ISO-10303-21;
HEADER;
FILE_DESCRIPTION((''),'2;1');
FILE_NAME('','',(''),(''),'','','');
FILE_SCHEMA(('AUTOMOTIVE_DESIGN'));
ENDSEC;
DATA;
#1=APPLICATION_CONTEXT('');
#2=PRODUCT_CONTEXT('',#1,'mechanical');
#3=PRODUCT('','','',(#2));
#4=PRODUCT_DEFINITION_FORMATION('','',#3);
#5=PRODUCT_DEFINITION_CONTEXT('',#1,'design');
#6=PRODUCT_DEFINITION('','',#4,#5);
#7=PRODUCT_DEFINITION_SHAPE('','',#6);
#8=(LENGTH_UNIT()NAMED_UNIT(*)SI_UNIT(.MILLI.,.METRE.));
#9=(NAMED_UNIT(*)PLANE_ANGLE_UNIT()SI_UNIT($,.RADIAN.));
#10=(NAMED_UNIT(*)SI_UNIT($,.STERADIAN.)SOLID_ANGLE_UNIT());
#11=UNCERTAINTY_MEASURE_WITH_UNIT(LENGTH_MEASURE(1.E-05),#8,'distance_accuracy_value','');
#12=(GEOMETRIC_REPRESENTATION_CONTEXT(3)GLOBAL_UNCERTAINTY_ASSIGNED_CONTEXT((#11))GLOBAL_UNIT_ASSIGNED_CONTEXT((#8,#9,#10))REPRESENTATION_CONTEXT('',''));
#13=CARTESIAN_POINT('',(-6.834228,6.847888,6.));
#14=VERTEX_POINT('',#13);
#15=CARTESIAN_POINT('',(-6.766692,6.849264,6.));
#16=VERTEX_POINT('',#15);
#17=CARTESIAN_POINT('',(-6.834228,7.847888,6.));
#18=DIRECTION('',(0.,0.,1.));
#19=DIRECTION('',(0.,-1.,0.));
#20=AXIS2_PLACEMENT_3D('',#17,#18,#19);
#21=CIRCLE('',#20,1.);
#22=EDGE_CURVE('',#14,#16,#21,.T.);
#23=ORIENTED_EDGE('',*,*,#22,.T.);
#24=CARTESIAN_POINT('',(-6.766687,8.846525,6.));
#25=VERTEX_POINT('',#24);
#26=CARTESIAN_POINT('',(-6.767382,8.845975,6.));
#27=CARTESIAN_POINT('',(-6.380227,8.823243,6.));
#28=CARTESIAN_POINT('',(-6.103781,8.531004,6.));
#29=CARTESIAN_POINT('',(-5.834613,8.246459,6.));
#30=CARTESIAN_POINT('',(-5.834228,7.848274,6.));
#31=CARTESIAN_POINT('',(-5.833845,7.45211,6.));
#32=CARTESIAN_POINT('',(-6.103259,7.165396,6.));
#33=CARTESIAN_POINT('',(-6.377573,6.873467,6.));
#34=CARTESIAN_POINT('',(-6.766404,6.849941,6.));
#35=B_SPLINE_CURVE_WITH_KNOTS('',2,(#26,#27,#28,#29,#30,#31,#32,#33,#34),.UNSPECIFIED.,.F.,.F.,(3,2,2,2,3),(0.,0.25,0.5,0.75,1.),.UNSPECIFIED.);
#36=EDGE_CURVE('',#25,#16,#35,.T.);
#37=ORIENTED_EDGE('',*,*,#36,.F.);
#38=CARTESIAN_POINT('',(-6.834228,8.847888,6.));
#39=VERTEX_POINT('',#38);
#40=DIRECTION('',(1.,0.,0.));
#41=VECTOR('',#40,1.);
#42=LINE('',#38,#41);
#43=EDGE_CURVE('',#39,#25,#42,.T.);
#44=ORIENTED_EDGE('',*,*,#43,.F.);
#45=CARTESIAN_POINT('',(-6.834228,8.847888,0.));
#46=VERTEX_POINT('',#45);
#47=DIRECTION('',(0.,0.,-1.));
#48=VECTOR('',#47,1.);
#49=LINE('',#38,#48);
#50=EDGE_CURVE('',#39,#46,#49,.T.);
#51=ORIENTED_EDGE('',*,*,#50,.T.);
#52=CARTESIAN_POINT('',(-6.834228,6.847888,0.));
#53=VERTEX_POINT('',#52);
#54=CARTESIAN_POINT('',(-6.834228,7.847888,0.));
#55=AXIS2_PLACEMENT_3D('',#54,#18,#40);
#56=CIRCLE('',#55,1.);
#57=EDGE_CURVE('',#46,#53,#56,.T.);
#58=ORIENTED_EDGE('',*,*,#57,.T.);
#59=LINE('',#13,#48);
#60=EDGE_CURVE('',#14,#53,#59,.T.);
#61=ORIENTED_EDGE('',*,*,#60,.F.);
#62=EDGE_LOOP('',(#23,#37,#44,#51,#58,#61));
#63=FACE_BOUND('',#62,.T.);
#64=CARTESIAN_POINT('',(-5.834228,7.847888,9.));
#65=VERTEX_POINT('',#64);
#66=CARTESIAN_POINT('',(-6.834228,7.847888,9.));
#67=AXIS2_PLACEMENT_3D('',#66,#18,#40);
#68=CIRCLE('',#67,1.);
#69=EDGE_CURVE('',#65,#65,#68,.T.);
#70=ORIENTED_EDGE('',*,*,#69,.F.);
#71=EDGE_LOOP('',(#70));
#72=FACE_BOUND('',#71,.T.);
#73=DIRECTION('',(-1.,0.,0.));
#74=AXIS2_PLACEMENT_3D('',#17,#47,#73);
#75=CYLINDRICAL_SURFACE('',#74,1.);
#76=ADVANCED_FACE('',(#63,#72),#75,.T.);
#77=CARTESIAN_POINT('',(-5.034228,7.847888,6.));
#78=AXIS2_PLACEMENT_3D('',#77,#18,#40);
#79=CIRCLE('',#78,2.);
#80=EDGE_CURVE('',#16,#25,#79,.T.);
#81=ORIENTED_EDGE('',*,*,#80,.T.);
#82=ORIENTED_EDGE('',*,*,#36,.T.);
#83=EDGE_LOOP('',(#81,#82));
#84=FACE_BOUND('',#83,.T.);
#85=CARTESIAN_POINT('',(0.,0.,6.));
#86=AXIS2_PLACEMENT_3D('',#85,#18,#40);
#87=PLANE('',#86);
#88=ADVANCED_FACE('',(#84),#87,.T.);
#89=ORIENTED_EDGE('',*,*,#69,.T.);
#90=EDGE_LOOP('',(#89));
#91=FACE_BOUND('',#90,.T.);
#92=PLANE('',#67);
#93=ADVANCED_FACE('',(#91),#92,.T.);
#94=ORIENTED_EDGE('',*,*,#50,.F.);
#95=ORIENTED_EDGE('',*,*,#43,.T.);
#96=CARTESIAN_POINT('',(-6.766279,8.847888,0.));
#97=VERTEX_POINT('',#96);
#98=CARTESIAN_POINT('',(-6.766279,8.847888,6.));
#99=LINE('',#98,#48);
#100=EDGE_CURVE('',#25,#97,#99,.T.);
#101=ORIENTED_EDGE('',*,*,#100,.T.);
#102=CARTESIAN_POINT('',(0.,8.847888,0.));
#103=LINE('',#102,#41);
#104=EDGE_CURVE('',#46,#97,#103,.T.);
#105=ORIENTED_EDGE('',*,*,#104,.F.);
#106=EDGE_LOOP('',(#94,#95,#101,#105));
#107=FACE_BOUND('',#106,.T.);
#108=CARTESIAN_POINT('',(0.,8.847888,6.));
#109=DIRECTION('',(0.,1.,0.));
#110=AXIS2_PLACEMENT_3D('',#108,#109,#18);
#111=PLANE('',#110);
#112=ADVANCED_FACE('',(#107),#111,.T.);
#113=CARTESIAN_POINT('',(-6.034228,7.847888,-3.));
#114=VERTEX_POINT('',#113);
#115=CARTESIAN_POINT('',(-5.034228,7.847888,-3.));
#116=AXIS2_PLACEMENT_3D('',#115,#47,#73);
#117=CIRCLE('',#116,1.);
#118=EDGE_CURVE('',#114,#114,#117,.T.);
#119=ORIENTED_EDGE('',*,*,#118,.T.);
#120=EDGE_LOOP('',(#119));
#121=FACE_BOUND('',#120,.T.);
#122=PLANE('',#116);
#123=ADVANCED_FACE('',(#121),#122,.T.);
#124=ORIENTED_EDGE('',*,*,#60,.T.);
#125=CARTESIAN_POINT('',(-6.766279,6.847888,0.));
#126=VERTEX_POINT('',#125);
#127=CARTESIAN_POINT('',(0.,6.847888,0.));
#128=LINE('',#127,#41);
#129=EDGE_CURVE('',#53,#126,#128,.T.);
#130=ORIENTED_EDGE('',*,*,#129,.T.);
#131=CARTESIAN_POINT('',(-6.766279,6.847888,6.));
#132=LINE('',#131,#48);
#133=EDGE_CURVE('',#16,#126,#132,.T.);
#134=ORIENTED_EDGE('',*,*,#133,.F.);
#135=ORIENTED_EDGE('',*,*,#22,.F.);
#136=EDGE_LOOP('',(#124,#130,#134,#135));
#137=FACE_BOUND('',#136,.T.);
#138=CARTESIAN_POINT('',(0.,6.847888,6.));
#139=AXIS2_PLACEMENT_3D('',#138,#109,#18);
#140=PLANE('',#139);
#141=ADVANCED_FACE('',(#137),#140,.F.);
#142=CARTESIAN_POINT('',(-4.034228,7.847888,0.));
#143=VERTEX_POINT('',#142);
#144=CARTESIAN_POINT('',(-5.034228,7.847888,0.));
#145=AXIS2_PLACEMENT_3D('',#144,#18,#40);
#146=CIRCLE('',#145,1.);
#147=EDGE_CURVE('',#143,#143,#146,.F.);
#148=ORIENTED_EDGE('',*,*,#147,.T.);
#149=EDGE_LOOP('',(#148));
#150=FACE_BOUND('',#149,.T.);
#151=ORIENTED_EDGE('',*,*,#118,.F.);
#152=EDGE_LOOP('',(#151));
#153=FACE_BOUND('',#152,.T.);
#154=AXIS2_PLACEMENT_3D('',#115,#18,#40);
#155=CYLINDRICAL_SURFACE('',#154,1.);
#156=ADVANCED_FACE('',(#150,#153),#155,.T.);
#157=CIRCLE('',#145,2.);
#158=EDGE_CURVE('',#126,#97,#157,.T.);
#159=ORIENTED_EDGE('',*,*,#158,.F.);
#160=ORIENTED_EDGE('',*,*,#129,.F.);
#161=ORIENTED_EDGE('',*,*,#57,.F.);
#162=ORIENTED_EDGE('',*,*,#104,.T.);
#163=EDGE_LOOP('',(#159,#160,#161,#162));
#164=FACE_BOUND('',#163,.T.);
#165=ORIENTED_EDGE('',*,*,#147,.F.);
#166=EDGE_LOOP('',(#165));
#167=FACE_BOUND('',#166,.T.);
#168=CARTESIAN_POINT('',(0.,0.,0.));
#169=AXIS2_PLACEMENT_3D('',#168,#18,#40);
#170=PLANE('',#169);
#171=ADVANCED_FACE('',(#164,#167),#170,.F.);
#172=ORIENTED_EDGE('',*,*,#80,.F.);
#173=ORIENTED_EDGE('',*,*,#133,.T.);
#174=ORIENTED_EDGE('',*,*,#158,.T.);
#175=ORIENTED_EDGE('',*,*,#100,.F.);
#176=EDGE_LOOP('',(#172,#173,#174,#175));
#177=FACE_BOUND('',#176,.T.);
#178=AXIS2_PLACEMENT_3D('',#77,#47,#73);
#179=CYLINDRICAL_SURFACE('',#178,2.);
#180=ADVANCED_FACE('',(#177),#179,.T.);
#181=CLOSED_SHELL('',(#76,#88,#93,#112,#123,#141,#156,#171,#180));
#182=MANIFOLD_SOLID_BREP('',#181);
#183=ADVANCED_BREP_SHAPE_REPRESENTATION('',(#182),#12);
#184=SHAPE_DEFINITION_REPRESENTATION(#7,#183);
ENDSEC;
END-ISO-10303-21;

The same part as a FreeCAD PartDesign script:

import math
import FreeCAD as App
import Part
import Sketcher

V = App.Vector

doc = App.newDocument("Part")
params = doc.addObject("Spreadsheet::Sheet", "Params")
for row, (alias, value) in enumerate([
    ("sketch1_radius", "1 mm"),
    ("sketch1_radius2", "2 mm"),
    ("pad1_length", "6 mm"),
    ("sketch2_diameter", "2 mm"),
    ("pad2_length", "3 mm"),
    ("sketch3_diameter", "2 mm"),
    ("pad3_length", "3 mm"),
], start=1):
    params.set(f"A{row}", alias)
    params.set(f"B{row}", "=" + value)
    params.setAlias(f"B{row}", alias)

body = doc.addObject("PartDesign::Body", "Body")

sketch1 = body.newObject("Sketcher::SketchObject", "Sketch")
sketch1.AttachmentSupport = (doc.getObject("XY_Plane"), [""])
sketch1.MapMode = "FlatFace"
sketch1.addGeometry([
    Part.LineSegment(V(-6.77, 8.85, 0), V(-6.83, 8.85, 0)),
    Part.ArcOfCircle(Part.Circle(V(-6.83, 7.85, 0), V(0, 0, 1), 1), math.radians(90), math.radians(270)),
    Part.LineSegment(V(-6.83, 6.85, 0), V(-6.77, 6.85, 0)),
    Part.ArcOfCircle(Part.Circle(V(-5.03, 7.85, 0), V(0, 0, 1), 2), math.radians(-150), math.radians(150)),
], False)
sketch1.addConstraint([
    Sketcher.Constraint("Tangent", 0, 2, 1, 1),
    Sketcher.Constraint("Tangent", 1, 2, 2, 1),
    Sketcher.Constraint("Coincident", 2, 2, 3, 1),
    Sketcher.Constraint("Coincident", 3, 2, 0, 1),
    Sketcher.Constraint("Horizontal", 0),
    Sketcher.Constraint("Horizontal", 2),
    Sketcher.Constraint("Horizontal", 1, 3, 3, 3),
    Sketcher.Constraint("Radius", 1, 1.0),
    Sketcher.Constraint("Radius", 3, 2.0),
    Sketcher.Constraint("DistanceX", 1, 3, 3, 3, 1.8),
    Sketcher.Constraint("DistanceX", 1, 3, -1, 1, 6.834228),
    Sketcher.Constraint("DistanceY", -1, 1, 1, 3, 7.847888),
])
sketch1.setExpression("Constraints[7]", "Params.sketch1_radius")
sketch1.setExpression("Constraints[8]", "Params.sketch1_radius2")
pad1 = body.newObject("PartDesign::Pad", "Pad")
pad1.Profile = sketch1
pad1.setExpression("Length", "Params.pad1_length")

sketch2 = body.newObject("Sketcher::SketchObject", "Sketch001")
sketch2.AttachmentSupport = (doc.getObject("XY_Plane"), [""])
sketch2.MapMode = "FlatFace"
sketch2.AttachmentOffset = App.Placement(V(0, 0, 6), App.Rotation())
sketch2.addGeometry(Part.Circle(V(-6.8, 7.8, 0), V(0, 0, 1), 1), False)
sketch2.addConstraint([
    Sketcher.Constraint("Diameter", 0, 2.0),
    Sketcher.Constraint("DistanceX", 0, 3, -1, 1, 6.834228),
    Sketcher.Constraint("DistanceY", -1, 1, 0, 3, 7.847888),
])
sketch2.setExpression("Constraints[0]", "Params.sketch2_diameter")
pad2 = body.newObject("PartDesign::Pad", "Pad001")
pad2.Profile = sketch2
pad2.setExpression("Length", "Params.pad2_length")

sketch3 = body.newObject("Sketcher::SketchObject", "Sketch002")
sketch3.AttachmentSupport = (doc.getObject("XY_Plane"), [""])
sketch3.MapMode = "FlatFace"
sketch3.addGeometry(Part.Circle(V(-5, 7.8, 0), V(0, 0, 1), 1), False)
sketch3.addConstraint([
    Sketcher.Constraint("Diameter", 0, 2.0),
    Sketcher.Constraint("DistanceX", 0, 3, -1, 1, 5.034228),
    Sketcher.Constraint("DistanceY", -1, 1, 0, 3, 7.847888),
])
sketch3.setExpression("Constraints[0]", "Params.sketch3_diameter")
pad3 = body.newObject("PartDesign::Pad", "Pad002")
pad3.Profile = sketch3
pad3.setExpression("Length", "Params.pad3_length")
pad3.Reversed = True

doc.recompute()
